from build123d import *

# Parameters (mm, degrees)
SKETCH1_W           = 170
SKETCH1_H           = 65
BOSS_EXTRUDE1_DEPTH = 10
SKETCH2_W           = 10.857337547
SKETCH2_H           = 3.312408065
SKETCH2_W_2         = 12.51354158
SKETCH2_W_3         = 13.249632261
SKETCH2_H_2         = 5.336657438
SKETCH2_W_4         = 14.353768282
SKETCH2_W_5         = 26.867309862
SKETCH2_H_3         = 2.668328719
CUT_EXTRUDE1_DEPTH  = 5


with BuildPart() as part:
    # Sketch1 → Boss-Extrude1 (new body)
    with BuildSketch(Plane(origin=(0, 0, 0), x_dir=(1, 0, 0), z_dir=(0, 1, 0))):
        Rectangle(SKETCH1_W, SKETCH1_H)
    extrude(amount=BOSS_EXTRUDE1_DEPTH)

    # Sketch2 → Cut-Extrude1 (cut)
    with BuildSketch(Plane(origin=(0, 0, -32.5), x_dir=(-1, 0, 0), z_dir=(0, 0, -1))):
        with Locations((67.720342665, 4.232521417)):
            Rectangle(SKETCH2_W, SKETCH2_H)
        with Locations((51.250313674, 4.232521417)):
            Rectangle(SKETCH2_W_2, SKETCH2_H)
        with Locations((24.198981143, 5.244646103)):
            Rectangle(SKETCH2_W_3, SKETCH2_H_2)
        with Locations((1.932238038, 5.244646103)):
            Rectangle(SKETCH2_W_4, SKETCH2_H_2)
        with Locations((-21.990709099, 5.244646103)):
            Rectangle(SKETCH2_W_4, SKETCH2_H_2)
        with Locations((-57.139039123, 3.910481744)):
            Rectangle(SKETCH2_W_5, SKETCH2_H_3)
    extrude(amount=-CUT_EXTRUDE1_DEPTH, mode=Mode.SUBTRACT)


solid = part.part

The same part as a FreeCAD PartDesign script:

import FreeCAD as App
import Part
import Sketcher
from FreeCAD import Vector
Q = App.Units.Quantity


def add_polygon(sketch, points):
    """Adds a closed chain of lines whose ends are joined by coincident constraints."""
    first, n = sketch.GeometryCount, len(points)
    for a, b in zip(points, points[1:] + points[:1]):
        sketch.addGeometry(Part.LineSegment(App.Vector(*a, 0), App.Vector(*b, 0)), False)
    for i in range(n):
        sketch.addConstraint(Sketcher.Constraint("Coincident", first + i, 2, first + (i + 1) % n, 1))

doc = App.newDocument("Part")
body = doc.addObject("PartDesign::Body", "Body")

# Sketch on XZ plane
sketch1 = body.newObject("Sketcher::SketchObject", "Sketch")
sketch1.AttachmentSupport = (doc.getObject("XZ_Plane"), [""])
sketch1.MapMode = "FlatFace"
add_polygon(sketch1, [(-85, -32.5), (-85, 32.5), (85, 32.5), (85, -32.5)])  # lines 0-3
sketch1.addConstraint([
    Sketcher.Constraint("Vertical", 0),
    Sketcher.Constraint("Horizontal", 1),
    Sketcher.Constraint("Vertical", 2),
    Sketcher.Constraint("Horizontal", 3),
    Sketcher.Constraint("Symmetric", 0, 2, 2, 2, -1, 1),
    Sketcher.Constraint("DistanceX", 1, 1, 1, 2, Q("170 mm")),
    Sketcher.Constraint("DistanceY", 0, 1, 0, 2, Q("65 mm")),
])
pad1 = body.newObject("PartDesign::Pad", "Pad")
pad1.Profile = sketch1
pad1.Length = 10
pad1.Reversed = True

# Sketch on XY plane
sketch2 = body.newObject("Sketcher::SketchObject", "Sketch001")
sketch2.AttachmentSupport = (doc.getObject("XY_Plane"), [""])
sketch2.MapMode = "FlatFace"
sketch2.AttachmentOffset = App.Placement(Vector(0, 0, -32.5), App.Rotation())
add_polygon(sketch2, [(-62.291674, 5.888725), (-62.291674, 2.576317), (-73.149011, 2.576317), (-73.149011, 5.888725)])  # lines 0-3
add_polygon(sketch2, [(-44.993543, 5.888725), (-44.993543, 2.576317), (-57.507084, 2.576317), (-57.507084, 5.888725)])  # lines 4-7
add_polygon(sketch2, [(-17.574165, 7.912975), (-17.574165, 2.576317), (-30.823797, 2.576317), (-30.823797, 7.912975)])  # lines 8-11
add_polygon(sketch2, [(5.244646, 7.912975), (5.244646, 2.576317), (-9.109122, 2.576317), (-9.109122, 7.912975)])  # lines 12-15
add_polygon(sketch2, [(29.167593, 7.912975), (29.167593, 2.576317), (14.813825, 2.576317), (14.813825, 7.912975)])  # lines 16-19
add_polygon(sketch2, [(70.572694, 5.244646), (70.572694, 2.576317), (43.705384, 2.576317), (43.705384, 5.244646)])  # lines 20-23
sketch2.addConstraint([
    Sketcher.Constraint("Vertical", 0),
    Sketcher.Constraint("Horizontal", 1),
    Sketcher.Constraint("Vertical", 2),
    Sketcher.Constraint("Horizontal", 3),
    Sketcher.Constraint("Vertical", 4),
    Sketcher.Constraint("Horizontal", 5),
    Sketcher.Constraint("Vertical", 6),
    Sketcher.Constraint("Horizontal", 7),
    Sketcher.Constraint("Vertical", 8),
    Sketcher.Constraint("Horizontal", 9),
    Sketcher.Constraint("Vertical", 10),
    Sketcher.Constraint("Horizontal", 11),
    Sketcher.Constraint("Vertical", 12),
    Sketcher.Constraint("Horizontal", 13),
    Sketcher.Constraint("Vertical", 14),
    Sketcher.Constraint("Horizontal", 15),
    Sketcher.Constraint("Vertical", 16),
    Sketcher.Constraint("Horizontal", 17),
    Sketcher.Constraint("Vertical", 18),
    Sketcher.Constraint("Horizontal", 19),
    Sketcher.Constraint("Vertical", 20),
    Sketcher.Constraint("Horizontal", 21),
    Sketcher.Constraint("Vertical", 22),
    Sketcher.Constraint("Horizontal", 23),
    Sketcher.Constraint("Horizontal", 1, 2, 4, 2),
    Sketcher.Constraint("Horizontal", 3, 2, 6, 2),
    Sketcher.Constraint("Horizontal", 5, 2, 8, 2),
    Sketcher.Constraint("Horizontal", 9, 2, 12, 2),
    Sketcher.Constraint("Horizontal", 11, 2, 14, 2),
    Sketcher.Constraint("Horizontal", 13, 2, 16, 2),
    Sketcher.Constraint("Horizontal", 15, 2, 18, 2),
    Sketcher.Constraint("Horizontal", 17, 2, 20, 2),
    Sketcher.Constraint("Equal", 15, 17),
    Sketcher.Constraint("DistanceX", 5, 2, 5, 1, Q("12.513542 mm")),
    Sketcher.Constraint("DistanceX", 13, 2, 13, 1, Q("14.353768 mm")),
    Sketcher.Constraint("DistanceX", 21, 2, 21, 1, Q("26.86731 mm")),
    Sketcher.Constraint("DistanceY", 0, 2, 0, 1, Q("3.312408 mm")),
    Sketcher.Constraint("DistanceY", 20, 2, 20, 1, Q("2.668329 mm")),
    Sketcher.Constraint("DistanceX", 16, 2, 20, 2, Q("41.405101 mm")),
    Sketcher.Constraint("DistanceX", 1, 2, 1, 1, Q("10.857338 mm")),
    Sketcher.Constraint("DistanceX", 9, 2, 9, 1, Q("13.249632 mm")),
    Sketcher.Constraint("DistanceY", 8, 2, 8, 1, Q("5.336657 mm")),
    Sketcher.Constraint("DistanceX", 1, 2, -1, 1, Q("73.149011 mm")),
    Sketcher.Constraint("DistanceX", 0, 2, 4, 2, Q("17.298131 mm")),
    Sketcher.Constraint("DistanceX", 5, 2, 8, 2, Q("39.932919 mm")),
    Sketcher.Constraint("DistanceX", 8, 2, 12, 2, Q("22.818811 mm")),
    Sketcher.Constraint("DistanceX", 8, 2, 16, 2, Q("46.741758 mm")),
    Sketcher.Constraint("DistanceY", -1, 1, 0, 2, Q("2.576317 mm")),
])
pocket1 = body.newObject("PartDesign::Pocket", "Pocket")
pocket1.Profile = sketch2
pocket1.Length = 5
pocket1.Reversed = True

doc.recompute()
